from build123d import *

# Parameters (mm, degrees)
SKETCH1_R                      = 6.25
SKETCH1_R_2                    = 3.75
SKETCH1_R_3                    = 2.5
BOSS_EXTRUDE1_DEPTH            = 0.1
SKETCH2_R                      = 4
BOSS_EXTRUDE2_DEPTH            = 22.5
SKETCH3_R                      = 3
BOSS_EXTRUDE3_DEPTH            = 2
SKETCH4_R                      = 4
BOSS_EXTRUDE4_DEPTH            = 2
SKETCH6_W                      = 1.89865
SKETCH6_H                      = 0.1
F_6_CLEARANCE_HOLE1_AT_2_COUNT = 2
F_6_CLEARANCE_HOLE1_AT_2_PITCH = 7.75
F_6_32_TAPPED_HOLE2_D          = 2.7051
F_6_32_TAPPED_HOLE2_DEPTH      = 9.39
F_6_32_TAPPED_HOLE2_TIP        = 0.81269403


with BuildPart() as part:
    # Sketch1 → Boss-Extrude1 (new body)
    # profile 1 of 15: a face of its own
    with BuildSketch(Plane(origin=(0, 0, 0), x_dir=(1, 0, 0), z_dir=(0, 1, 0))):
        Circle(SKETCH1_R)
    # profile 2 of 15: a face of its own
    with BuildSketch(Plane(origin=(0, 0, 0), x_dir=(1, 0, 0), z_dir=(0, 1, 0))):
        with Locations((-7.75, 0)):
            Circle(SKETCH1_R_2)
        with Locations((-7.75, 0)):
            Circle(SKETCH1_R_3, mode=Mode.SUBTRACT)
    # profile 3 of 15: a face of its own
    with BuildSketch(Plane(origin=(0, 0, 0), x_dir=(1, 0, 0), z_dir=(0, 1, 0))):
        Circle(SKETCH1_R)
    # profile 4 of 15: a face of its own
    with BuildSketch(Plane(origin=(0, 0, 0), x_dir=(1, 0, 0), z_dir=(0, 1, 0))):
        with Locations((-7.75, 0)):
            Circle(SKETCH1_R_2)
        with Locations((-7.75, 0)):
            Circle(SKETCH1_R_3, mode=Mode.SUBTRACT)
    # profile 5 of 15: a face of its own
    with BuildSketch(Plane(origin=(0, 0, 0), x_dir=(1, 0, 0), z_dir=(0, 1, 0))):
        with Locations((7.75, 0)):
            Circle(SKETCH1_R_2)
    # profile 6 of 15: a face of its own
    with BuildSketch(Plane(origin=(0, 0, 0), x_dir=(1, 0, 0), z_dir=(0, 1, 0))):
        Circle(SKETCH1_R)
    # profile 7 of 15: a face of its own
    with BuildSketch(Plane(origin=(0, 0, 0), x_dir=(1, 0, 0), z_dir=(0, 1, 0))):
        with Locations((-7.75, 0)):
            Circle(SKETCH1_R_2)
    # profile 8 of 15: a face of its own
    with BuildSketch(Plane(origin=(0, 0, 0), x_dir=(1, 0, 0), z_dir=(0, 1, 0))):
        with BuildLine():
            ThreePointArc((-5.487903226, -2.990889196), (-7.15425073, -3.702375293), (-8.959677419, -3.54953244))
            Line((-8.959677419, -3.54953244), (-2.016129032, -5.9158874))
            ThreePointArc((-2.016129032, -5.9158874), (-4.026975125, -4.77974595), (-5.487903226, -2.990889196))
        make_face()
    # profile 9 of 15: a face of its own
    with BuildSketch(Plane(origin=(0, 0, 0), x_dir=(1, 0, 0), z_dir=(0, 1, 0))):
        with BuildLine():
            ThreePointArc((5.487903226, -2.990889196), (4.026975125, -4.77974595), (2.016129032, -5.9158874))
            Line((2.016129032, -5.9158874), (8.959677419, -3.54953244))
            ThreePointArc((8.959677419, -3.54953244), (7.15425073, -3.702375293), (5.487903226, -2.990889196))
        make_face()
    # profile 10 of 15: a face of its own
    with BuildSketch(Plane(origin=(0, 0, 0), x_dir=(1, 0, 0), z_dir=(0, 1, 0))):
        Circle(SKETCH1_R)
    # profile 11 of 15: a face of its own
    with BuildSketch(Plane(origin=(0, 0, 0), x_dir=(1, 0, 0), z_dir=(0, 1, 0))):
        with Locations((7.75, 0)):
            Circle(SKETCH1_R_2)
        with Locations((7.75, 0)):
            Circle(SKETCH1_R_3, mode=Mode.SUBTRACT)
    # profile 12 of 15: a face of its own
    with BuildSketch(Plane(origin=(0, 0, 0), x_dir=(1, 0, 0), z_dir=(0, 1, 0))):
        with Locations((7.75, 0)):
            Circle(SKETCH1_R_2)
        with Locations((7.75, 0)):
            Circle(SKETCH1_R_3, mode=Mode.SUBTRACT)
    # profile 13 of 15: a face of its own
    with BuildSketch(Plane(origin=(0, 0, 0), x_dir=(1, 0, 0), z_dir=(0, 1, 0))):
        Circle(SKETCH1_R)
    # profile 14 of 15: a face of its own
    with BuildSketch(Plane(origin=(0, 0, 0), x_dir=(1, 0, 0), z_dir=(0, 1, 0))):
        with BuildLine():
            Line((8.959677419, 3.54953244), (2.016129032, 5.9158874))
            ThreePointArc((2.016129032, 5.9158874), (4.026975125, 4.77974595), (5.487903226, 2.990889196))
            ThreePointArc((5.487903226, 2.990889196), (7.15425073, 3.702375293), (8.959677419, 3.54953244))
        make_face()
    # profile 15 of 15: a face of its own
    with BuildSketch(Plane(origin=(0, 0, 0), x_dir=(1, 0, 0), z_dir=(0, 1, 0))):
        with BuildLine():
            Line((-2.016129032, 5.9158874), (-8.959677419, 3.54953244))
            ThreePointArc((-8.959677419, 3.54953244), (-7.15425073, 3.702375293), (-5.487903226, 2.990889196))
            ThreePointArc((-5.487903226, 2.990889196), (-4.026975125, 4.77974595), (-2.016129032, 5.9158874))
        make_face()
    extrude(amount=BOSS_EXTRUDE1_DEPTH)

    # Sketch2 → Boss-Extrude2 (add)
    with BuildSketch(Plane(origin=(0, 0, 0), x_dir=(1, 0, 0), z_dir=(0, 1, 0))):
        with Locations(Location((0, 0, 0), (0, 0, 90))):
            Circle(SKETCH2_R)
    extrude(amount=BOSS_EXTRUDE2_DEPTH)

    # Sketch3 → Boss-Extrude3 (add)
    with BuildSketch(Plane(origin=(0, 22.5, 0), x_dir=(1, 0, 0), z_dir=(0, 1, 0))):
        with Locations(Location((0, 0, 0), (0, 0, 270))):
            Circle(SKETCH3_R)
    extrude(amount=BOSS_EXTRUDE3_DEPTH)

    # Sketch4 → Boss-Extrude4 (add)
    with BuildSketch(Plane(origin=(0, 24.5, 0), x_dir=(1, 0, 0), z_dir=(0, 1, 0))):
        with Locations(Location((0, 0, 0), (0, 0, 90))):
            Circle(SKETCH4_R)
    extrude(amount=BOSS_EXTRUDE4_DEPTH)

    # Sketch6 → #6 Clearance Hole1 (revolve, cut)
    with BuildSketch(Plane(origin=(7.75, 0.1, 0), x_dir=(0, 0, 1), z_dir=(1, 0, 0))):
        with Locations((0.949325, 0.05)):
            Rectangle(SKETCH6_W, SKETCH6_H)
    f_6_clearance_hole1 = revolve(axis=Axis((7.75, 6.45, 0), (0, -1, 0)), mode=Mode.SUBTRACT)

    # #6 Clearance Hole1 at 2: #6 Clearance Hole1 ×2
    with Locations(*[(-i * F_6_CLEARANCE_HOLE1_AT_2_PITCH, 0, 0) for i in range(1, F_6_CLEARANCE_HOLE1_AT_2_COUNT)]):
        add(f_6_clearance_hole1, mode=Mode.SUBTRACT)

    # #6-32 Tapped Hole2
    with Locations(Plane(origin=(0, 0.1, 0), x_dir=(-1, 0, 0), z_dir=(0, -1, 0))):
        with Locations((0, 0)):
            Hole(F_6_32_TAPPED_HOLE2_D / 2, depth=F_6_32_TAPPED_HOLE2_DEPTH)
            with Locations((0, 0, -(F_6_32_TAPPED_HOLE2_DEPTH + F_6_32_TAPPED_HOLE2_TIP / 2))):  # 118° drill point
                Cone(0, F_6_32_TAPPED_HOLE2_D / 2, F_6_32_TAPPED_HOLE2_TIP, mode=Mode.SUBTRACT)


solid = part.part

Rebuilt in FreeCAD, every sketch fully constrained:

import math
import FreeCAD as App
import Part
import Sketcher
Q = App.Units.Quantity


def add_polygon(sketch, points):
    """Adds a closed chain of lines whose ends are joined by coincident constraints."""
    first, n = sketch.GeometryCount, len(points)
    for a, b in zip(points, points[1:] + points[:1]):
        sketch.addGeometry(Part.LineSegment(App.Vector(*a, 0), App.Vector(*b, 0)), False)
    for i in range(n):
        sketch.addConstraint(Sketcher.Constraint("Coincident", first + i, 2, first + (i + 1) % n, 1))

doc = App.newDocument("Part")
body = doc.addObject("PartDesign::Body", "Body")

# Sketch on XZ plane
sketch1 = body.newObject("Sketcher::SketchObject", "Sketch")
sketch1.AttachmentSupport = (doc.getObject("XZ_Plane"), [""])
sketch1.MapMode = "FlatFace"
sketch1.addGeometry([
    Part.ArcOfCircle(Part.Circle(App.Vector(0, 0, 0), App.Vector(0, 0, 1), 6.25), math.radians(71.180937), math.radians(108.819063)),  # 0
    Part.LineSegment(App.Vector(2.016129, 5.915887, 0), App.Vector(8.959677, 3.549532, 0)),  # 1
    Part.ArcOfCircle(Part.Circle(App.Vector(7.75, 0, 0), App.Vector(0, 0, 1), 3.75), math.radians(-71.180937), math.radians(71.180937)),  # 2
    Part.LineSegment(App.Vector(8.959677, -3.549532, 0), App.Vector(2.016129, -5.915887, 0)),  # 3
    Part.ArcOfCircle(Part.Circle(App.Vector(0, 0, 0), App.Vector(0, 0, 1), 6.25), math.radians(-108.819063), math.radians(-71.180937)),  # 4
    Part.LineSegment(App.Vector(-2.016129, -5.915887, 0), App.Vector(-8.959677, -3.549532, 0)),  # 5
    Part.ArcOfCircle(Part.Circle(App.Vector(-7.75, 0, 0), App.Vector(0, 0, 1), 3.75), math.radians(108.819063), math.radians(251.180937)),  # 6
    Part.LineSegment(App.Vector(-8.959677, 3.549532, 0), App.Vector(-2.016129, 5.915887, 0)),  # 7
], False)
sketch1.addConstraint([
    Sketcher.Constraint("Tangent", 0, 1, 1, 1),
    Sketcher.Constraint("Tangent", 1, 2, 2, 2),
    Sketcher.Constraint("Tangent", 2, 1, 3, 1),
    Sketcher.Constraint("Tangent", 3, 2, 4, 2),
    Sketcher.Constraint("Tangent", 4, 1, 5, 1),
    Sketcher.Constraint("Tangent", 5, 2, 6, 2),
    Sketcher.Constraint("Tangent", 6, 1, 7, 1),
    Sketcher.Constraint("Tangent", 7, 2, 0, 2),
    Sketcher.Constraint("Coincident", 0, 3, -1, 1),
    Sketcher.Constraint("Coincident", 4, 3, -1, 1),
    Sketcher.Constraint("Equal", 0, 4),
    Sketcher.Constraint("Equal", 2, 6),
    Sketcher.Constraint("Symmetric", 2, 3, 6, 3, -1, 1),
    Sketcher.Constraint("PointOnObject", 2, 3, -1),
    Sketcher.Constraint("Radius", 0, Q("6.25 mm")),
    Sketcher.Constraint("Radius", 2, Q("3.75 mm")),
    Sketcher.Constraint("DistanceX", 6, 3, 2, 3, Q("15.5 mm")),
])
pad1 = body.newObject("PartDesign::Pad", "Pad")
pad1.Profile = sketch1
pad1.Length = 0.1
pad1.Reversed = True

# Sketch on XZ plane
sketch2 = body.newObject("Sketcher::SketchObject", "Sketch001")
sketch2.AttachmentSupport = (doc.getObject("XZ_Plane"), [""])
sketch2.MapMode = "FlatFace"
sketch2.addGeometry(Part.Circle(App.Vector(0, 0, 0), App.Vector(0, 0, 1), 4), False)
sketch2.addConstraint([
    Sketcher.Constraint("Coincident", 0, 3, -1, 1),
    Sketcher.Constraint("Diameter", 0, Q("8 mm")),
])
pad2 = body.newObject("PartDesign::Pad", "Pad001")
pad2.Profile = sketch2
pad2.Length = 22.5
pad2.Reversed = True

# Sketch on XZ plane
sketch3 = body.newObject("Sketcher::SketchObject", "Sketch002")
sketch3.AttachmentSupport = (doc.getObject("XZ_Plane"), [""])
sketch3.MapMode = "FlatFace"
sketch3.AttachmentOffset = App.Placement(App.Vector(0, 0, -22.5), App.Rotation())
sketch3.addGeometry(Part.Circle(App.Vector(0, 0, 0), App.Vector(0, 0, 1), 3), False)
sketch3.addConstraint([
    Sketcher.Constraint("Coincident", 0, 3, -1, 1),
    Sketcher.Constraint("Diameter", 0, Q("6 mm")),
])
pad3 = body.newObject("PartDesign::Pad", "Pad002")
pad3.Profile = sketch3
pad3.Length = 2
pad3.Reversed = True

# Sketch on XZ plane
sketch4 = body.newObject("Sketcher::SketchObject", "Sketch003")
sketch4.AttachmentSupport = (doc.getObject("XZ_Plane"), [""])
sketch4.MapMode = "FlatFace"
sketch4.AttachmentOffset = App.Placement(App.Vector(0, 0, -24.5), App.Rotation())
sketch4.addGeometry(Part.Circle(App.Vector(0, 0, 0), App.Vector(0, 0, 1), 4), False)
sketch4.addConstraint([
    Sketcher.Constraint("Coincident", 0, 3, -1, 1),
    Sketcher.Constraint("Diameter", 0, Q("8 mm")),
])
pad4 = body.newObject("PartDesign::Pad", "Pad003")
pad4.Profile = sketch4
pad4.Length = 2
pad4.Reversed = True

# Sketch on YZ plane
sketch5 = body.newObject("Sketcher::SketchObject", "Sketch004")
sketch5.AttachmentSupport = (doc.getObject("YZ_Plane"), [""])
sketch5.MapMode = "FlatFace"
sketch5.AttachmentOffset = App.Placement(App.Vector(0, 0, 7.75), App.Rotation())
add_polygon(sketch5, [(0, 0), (0.1, 0), (0.1, 1.89865), (0, 1.89865)])  # lines 0-3
sketch5.addConstraint([
    Sketcher.Constraint("Horizontal", 0),
    Sketcher.Constraint("Vertical", 1),
    Sketcher.Constraint("Horizontal", 2),
    Sketcher.Constraint("Vertical", 3),
    Sketcher.Constraint("Coincident", 3, 2, -1, 1),
    Sketcher.Constraint("DistanceX", 0, 1, 0, 2, Q("0.1 mm")),
    Sketcher.Constraint("DistanceY", 1, 1, 1, 2, Q("1.89865 mm")),
])
groove = body.newObject("PartDesign::Groove", "Groove")
groove.Profile = sketch5
groove.ReferenceAxis = (sketch5, ["H_Axis"])
groove.Angle = 360
doc.recompute()

linearpattern = body.newObject("PartDesign::LinearPattern", "LinearPattern")
linearpattern.Originals = [groove]
linearpattern.Direction = (doc.getObject("X_Axis"), [""])
linearpattern.Mode = "offset"
linearpattern.Offset = 7.75
linearpattern.Occurrences = 2
linearpattern.Reversed = True
body.Tip = linearpattern

# Sketch on XZ plane
sketch6 = body.newObject("Sketcher::SketchObject", "Sketch005")
sketch6.AttachmentSupport = (doc.getObject("XZ_Plane"), [""])
sketch6.MapMode = "FlatFace"
sketch6.AttachmentOffset = App.Placement(App.Vector(0, 0, -0.1), App.Rotation())
sketch6.addGeometry(Part.Circle(App.Vector(0, 0, 0), App.Vector(0, 0, 1), 1.35255), False)
sketch6.addConstraint([
    Sketcher.Constraint("Coincident", 0, 3, -1, 1),
    Sketcher.Constraint("Diameter", 0, Q("2.7051 mm")),
])
doc.recompute()
hole = body.newObject("PartDesign::Hole", "Hole")
hole.Profile = sketch6
hole.ThreadType = "None"
hole.Diameter = 2.7051
hole.DepthType = "Dimension"
hole.Depth = 9.39
hole.DrillPoint = "Angled"
hole.DrillPointAngle = 118

doc.recompute()
